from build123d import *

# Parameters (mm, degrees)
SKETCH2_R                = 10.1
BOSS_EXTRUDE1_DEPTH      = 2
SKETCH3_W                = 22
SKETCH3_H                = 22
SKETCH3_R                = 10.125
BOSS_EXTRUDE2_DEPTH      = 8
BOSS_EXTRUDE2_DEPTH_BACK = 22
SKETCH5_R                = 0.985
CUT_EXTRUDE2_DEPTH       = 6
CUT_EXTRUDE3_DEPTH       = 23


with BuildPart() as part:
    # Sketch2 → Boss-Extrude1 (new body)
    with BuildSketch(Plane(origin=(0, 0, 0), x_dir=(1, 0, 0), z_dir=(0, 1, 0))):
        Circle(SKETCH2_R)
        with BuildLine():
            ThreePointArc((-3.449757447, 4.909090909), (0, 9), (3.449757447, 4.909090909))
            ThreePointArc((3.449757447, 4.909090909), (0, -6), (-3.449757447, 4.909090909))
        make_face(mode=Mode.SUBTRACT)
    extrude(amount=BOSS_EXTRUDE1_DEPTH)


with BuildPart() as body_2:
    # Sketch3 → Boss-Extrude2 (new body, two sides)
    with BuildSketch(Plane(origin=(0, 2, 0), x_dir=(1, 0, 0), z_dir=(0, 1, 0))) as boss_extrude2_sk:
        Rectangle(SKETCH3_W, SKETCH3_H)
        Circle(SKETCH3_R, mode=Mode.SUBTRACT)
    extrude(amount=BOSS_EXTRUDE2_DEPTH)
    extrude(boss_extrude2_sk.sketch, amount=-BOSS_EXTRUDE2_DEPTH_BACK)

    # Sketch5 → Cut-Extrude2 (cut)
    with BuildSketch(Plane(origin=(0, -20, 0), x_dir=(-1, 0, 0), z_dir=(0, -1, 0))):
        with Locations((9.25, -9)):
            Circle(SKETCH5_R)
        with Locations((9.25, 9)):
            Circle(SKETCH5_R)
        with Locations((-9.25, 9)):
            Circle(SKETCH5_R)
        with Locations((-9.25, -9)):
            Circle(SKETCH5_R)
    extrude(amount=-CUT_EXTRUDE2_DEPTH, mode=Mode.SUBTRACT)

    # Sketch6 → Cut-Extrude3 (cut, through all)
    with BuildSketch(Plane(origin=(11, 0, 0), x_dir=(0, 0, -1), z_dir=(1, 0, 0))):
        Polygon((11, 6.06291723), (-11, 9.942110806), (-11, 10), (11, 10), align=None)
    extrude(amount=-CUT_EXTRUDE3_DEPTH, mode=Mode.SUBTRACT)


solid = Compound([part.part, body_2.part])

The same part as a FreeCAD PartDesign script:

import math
import FreeCAD as App
import Part
import Sketcher
from FreeCAD import Vector
Q = App.Units.Quantity

doc = App.newDocument("Part")
body = doc.addObject("PartDesign::Body", "Body")

sketch1 = doc.addObject("Sketcher::SketchObject", "Sketch")
body.addObject(sketch1)
sketch1.AttachmentSupport = (doc.XZ_Plane, [""])
sketch1.MapMode = "FlatFace"
sketch1.addGeometry(Part.Circle(Vector(0, 0, 0), Vector(0, 0, 1), 10.1), False)
sketch1.addGeometry(Part.ArcOfCircle(Part.Circle(Vector(0, 0, 0), Vector(0, 0, 1), 6), math.radians(-54.903199), math.radians(234.903199)), False)
sketch1.addGeometry(Part.ArcOfCircle(Part.Circle(Vector(0, -5.5, 0), Vector(0, 0, 1), 3.5), math.radians(170.280132), math.radians(369.719868)), False)
sketch1.addConstraint(Sketcher.Constraint("Coincident", 1, 1, 2, 2))
sketch1.addConstraint(Sketcher.Constraint("Coincident", 2, 1, 1, 2))
sketch1.addConstraint(Sketcher.Constraint("Coincident", 0, 3, -1, 1))
sketch1.addConstraint(Sketcher.Constraint("Coincident", 1, 3, -1, 1))
sketch1.addConstraint(Sketcher.Constraint("PointOnObject", 2, 3, -2))
sketch1.addConstraint(Sketcher.Constraint("Radius", 1, Q("6 mm")))
sketch1.addConstraint(Sketcher.Constraint("Diameter", 0, Q("20.2 mm")))
sketch1.addConstraint(Sketcher.Constraint("Radius", 2, Q("3.5 mm")))
sketch1.addConstraint(Sketcher.Constraint("DistanceY", 2, 3, -1, 1, Q("5.5 mm")))
pad1 = doc.addObject("PartDesign::Pad", "Pad")
body.addObject(pad1)
pad1.Profile = sketch1
pad1.Length = 2
pad1.Reversed = True
body2 = doc.addObject("PartDesign::Body", "Body001")

sketch2 = doc.addObject("Sketcher::SketchObject", "Sketch001")
body2.addObject(sketch2)
sketch2.AttachmentSupport = (doc.getObject("XZ_Plane001"), [""])
sketch2.MapMode = "FlatFace"
sketch2.AttachmentOffset = App.Placement(Vector(0, 0, -2), App.Rotation())
sketch2.addGeometry(Part.LineSegment(Vector(-11, -11, 0), Vector(-11, 11, 0)), False)
sketch2.addGeometry(Part.LineSegment(Vector(-11, 11, 0), Vector(11, 11, 0)), False)
sketch2.addGeometry(Part.LineSegment(Vector(11, 11, 0), Vector(11, -11, 0)), False)
sketch2.addGeometry(Part.LineSegment(Vector(11, -11, 0), Vector(-11, -11, 0)), False)
sketch2.addGeometry(Part.Circle(Vector(0, 0, 0), Vector(0, 0, 1), 10.125), False)
sketch2.addConstraint(Sketcher.Constraint("Coincident", 0, 2, 1, 1))
sketch2.addConstraint(Sketcher.Constraint("Coincident", 1, 2, 2, 1))
sketch2.addConstraint(Sketcher.Constraint("Coincident", 2, 2, 3, 1))
sketch2.addConstraint(Sketcher.Constraint("Coincident", 3, 2, 0, 1))
sketch2.addConstraint(Sketcher.Constraint("Vertical", 0))
sketch2.addConstraint(Sketcher.Constraint("Horizontal", 1))
sketch2.addConstraint(Sketcher.Constraint("Vertical", 2))
sketch2.addConstraint(Sketcher.Constraint("Horizontal", 3))
sketch2.addConstraint(Sketcher.Constraint("Coincident", 4, 3, -1, 1))
sketch2.addConstraint(Sketcher.Constraint("Symmetric", 0, 2, 2, 2, -1, 1))
sketch2.addConstraint(Sketcher.Constraint("Equal", 3, 0))
sketch2.addConstraint(Sketcher.Constraint("Diameter", 4, Q("20.25 mm")))
sketch2.addConstraint(Sketcher.Constraint("DistanceX", 1, 1, 1, 2, Q("22 mm")))
pad2 = doc.addObject("PartDesign::Pad", "Pad001")
body2.addObject(pad2)
pad2.Profile = sketch2
pad2.Type = "TwoLengths"
pad2.Length = 8
pad2.Length2 = 22
pad2.Reversed = True

sketch3 = doc.addObject("Sketcher::SketchObject", "Sketch002")
body2.addObject(sketch3)
sketch3.AttachmentSupport = (doc.getObject("XZ_Plane001"), [""])
sketch3.MapMode = "FlatFace"
sketch3.AttachmentOffset = App.Placement(Vector(0, 0, 20), App.Rotation())
sketch3.addGeometry(Part.Circle(Vector(-9.25, 9, 0), Vector(0, 0, 1), 0.985), False)
sketch3.addGeometry(Part.Circle(Vector(-9.25, -9, 0), Vector(0, 0, 1), 0.985), False)
sketch3.addGeometry(Part.Circle(Vector(9.25, -9, 0), Vector(0, 0, 1), 0.985), False)
sketch3.addGeometry(Part.Circle(Vector(9.25, 9, 0), Vector(0, 0, 1), 0.985), False)
sketch3.addConstraint(Sketcher.Constraint("Equal", 0, 1))
sketch3.addConstraint(Sketcher.Constraint("Equal", 1, 2))
sketch3.addConstraint(Sketcher.Constraint("Equal", 2, 3))
sketch3.addConstraint(Sketcher.Constraint("Symmetric", 0, 3, 2, 3, -1, 1))
sketch3.addConstraint(Sketcher.Constraint("Symmetric", 1, 3, 3, 3, -1, 1))
sketch3.addConstraint(Sketcher.Constraint("Symmetric", 1, 3, 2, 3, -2))
sketch3.addConstraint(Sketcher.Constraint("Diameter", 0, Q("1.97 mm")))
sketch3.addConstraint(Sketcher.Constraint("DistanceY", -1, 1, 0, 3, Q("9 mm")))
sketch3.addConstraint(Sketcher.Constraint("DistanceX", 1, 3, 2, 3, Q("18.5 mm")))
pocket1 = doc.addObject("PartDesign::Pocket", "Pocket")
body2.addObject(pocket1)
pocket1.Profile = sketch3
pocket1.Length = 6

sketch4 = doc.addObject("Sketcher::SketchObject", "Sketch003")
body2.addObject(sketch4)
sketch4.AttachmentSupport = (doc.getObject("YZ_Plane001"), [""])
sketch4.MapMode = "FlatFace"
sketch4.AttachmentOffset = App.Placement(Vector(0, 0, 11), App.Rotation())
sketch4.addGeometry(Part.LineSegment(Vector(9.942111, 11, 0), Vector(6.062917, -11, 0)), False)
sketch4.addGeometry(Part.LineSegment(Vector(6.062917, -11, 0), Vector(10, -11, 0)), False)
sketch4.addGeometry(Part.LineSegment(Vector(10, -11, 0), Vector(10, 11, 0)), False)
sketch4.addGeometry(Part.LineSegment(Vector(10, 11, 0), Vector(9.942111, 11, 0)), False)
sketch4.addConstraint(Sketcher.Constraint("Coincident", 0, 2, 1, 1))
sketch4.addConstraint(Sketcher.Constraint("Coincident", 1, 2, 2, 1))
sketch4.addConstraint(Sketcher.Constraint("Coincident", 2, 2, 3, 1))
sketch4.addConstraint(Sketcher.Constraint("Coincident", 3, 2, 0, 1))
sketch4.addConstraint(Sketcher.Constraint("Horizontal", 1))
sketch4.addConstraint(Sketcher.Constraint("Vertical", 2))
sketch4.addConstraint(Sketcher.Constraint("Horizontal", 3))
sketch4.addConstraint(Sketcher.Constraint("DistanceY", 2, 1, 2, 2, Q("22 mm")))
sketch4.addConstraint(Sketcher.Constraint("Angle", 0, Q("-100 deg")))
sketch4.addConstraint(Sketcher.Constraint("DistanceY", 0, 2, -1, 1, Q("11 mm")))
sketch4.addConstraint(Sketcher.Constraint("DistanceX", -1, 1, 1, 2, Q("10 mm")))
sketch4.addConstraint(Sketcher.Constraint("DistanceX", 3, 2, 3, 1, Q("0.057889 mm")))
pocket2 = doc.addObject("PartDesign::Pocket", "Pocket001")
body2.addObject(pocket2)
pocket2.Profile = sketch4
pocket2.Type = "ThroughAll"

doc.recompute()
